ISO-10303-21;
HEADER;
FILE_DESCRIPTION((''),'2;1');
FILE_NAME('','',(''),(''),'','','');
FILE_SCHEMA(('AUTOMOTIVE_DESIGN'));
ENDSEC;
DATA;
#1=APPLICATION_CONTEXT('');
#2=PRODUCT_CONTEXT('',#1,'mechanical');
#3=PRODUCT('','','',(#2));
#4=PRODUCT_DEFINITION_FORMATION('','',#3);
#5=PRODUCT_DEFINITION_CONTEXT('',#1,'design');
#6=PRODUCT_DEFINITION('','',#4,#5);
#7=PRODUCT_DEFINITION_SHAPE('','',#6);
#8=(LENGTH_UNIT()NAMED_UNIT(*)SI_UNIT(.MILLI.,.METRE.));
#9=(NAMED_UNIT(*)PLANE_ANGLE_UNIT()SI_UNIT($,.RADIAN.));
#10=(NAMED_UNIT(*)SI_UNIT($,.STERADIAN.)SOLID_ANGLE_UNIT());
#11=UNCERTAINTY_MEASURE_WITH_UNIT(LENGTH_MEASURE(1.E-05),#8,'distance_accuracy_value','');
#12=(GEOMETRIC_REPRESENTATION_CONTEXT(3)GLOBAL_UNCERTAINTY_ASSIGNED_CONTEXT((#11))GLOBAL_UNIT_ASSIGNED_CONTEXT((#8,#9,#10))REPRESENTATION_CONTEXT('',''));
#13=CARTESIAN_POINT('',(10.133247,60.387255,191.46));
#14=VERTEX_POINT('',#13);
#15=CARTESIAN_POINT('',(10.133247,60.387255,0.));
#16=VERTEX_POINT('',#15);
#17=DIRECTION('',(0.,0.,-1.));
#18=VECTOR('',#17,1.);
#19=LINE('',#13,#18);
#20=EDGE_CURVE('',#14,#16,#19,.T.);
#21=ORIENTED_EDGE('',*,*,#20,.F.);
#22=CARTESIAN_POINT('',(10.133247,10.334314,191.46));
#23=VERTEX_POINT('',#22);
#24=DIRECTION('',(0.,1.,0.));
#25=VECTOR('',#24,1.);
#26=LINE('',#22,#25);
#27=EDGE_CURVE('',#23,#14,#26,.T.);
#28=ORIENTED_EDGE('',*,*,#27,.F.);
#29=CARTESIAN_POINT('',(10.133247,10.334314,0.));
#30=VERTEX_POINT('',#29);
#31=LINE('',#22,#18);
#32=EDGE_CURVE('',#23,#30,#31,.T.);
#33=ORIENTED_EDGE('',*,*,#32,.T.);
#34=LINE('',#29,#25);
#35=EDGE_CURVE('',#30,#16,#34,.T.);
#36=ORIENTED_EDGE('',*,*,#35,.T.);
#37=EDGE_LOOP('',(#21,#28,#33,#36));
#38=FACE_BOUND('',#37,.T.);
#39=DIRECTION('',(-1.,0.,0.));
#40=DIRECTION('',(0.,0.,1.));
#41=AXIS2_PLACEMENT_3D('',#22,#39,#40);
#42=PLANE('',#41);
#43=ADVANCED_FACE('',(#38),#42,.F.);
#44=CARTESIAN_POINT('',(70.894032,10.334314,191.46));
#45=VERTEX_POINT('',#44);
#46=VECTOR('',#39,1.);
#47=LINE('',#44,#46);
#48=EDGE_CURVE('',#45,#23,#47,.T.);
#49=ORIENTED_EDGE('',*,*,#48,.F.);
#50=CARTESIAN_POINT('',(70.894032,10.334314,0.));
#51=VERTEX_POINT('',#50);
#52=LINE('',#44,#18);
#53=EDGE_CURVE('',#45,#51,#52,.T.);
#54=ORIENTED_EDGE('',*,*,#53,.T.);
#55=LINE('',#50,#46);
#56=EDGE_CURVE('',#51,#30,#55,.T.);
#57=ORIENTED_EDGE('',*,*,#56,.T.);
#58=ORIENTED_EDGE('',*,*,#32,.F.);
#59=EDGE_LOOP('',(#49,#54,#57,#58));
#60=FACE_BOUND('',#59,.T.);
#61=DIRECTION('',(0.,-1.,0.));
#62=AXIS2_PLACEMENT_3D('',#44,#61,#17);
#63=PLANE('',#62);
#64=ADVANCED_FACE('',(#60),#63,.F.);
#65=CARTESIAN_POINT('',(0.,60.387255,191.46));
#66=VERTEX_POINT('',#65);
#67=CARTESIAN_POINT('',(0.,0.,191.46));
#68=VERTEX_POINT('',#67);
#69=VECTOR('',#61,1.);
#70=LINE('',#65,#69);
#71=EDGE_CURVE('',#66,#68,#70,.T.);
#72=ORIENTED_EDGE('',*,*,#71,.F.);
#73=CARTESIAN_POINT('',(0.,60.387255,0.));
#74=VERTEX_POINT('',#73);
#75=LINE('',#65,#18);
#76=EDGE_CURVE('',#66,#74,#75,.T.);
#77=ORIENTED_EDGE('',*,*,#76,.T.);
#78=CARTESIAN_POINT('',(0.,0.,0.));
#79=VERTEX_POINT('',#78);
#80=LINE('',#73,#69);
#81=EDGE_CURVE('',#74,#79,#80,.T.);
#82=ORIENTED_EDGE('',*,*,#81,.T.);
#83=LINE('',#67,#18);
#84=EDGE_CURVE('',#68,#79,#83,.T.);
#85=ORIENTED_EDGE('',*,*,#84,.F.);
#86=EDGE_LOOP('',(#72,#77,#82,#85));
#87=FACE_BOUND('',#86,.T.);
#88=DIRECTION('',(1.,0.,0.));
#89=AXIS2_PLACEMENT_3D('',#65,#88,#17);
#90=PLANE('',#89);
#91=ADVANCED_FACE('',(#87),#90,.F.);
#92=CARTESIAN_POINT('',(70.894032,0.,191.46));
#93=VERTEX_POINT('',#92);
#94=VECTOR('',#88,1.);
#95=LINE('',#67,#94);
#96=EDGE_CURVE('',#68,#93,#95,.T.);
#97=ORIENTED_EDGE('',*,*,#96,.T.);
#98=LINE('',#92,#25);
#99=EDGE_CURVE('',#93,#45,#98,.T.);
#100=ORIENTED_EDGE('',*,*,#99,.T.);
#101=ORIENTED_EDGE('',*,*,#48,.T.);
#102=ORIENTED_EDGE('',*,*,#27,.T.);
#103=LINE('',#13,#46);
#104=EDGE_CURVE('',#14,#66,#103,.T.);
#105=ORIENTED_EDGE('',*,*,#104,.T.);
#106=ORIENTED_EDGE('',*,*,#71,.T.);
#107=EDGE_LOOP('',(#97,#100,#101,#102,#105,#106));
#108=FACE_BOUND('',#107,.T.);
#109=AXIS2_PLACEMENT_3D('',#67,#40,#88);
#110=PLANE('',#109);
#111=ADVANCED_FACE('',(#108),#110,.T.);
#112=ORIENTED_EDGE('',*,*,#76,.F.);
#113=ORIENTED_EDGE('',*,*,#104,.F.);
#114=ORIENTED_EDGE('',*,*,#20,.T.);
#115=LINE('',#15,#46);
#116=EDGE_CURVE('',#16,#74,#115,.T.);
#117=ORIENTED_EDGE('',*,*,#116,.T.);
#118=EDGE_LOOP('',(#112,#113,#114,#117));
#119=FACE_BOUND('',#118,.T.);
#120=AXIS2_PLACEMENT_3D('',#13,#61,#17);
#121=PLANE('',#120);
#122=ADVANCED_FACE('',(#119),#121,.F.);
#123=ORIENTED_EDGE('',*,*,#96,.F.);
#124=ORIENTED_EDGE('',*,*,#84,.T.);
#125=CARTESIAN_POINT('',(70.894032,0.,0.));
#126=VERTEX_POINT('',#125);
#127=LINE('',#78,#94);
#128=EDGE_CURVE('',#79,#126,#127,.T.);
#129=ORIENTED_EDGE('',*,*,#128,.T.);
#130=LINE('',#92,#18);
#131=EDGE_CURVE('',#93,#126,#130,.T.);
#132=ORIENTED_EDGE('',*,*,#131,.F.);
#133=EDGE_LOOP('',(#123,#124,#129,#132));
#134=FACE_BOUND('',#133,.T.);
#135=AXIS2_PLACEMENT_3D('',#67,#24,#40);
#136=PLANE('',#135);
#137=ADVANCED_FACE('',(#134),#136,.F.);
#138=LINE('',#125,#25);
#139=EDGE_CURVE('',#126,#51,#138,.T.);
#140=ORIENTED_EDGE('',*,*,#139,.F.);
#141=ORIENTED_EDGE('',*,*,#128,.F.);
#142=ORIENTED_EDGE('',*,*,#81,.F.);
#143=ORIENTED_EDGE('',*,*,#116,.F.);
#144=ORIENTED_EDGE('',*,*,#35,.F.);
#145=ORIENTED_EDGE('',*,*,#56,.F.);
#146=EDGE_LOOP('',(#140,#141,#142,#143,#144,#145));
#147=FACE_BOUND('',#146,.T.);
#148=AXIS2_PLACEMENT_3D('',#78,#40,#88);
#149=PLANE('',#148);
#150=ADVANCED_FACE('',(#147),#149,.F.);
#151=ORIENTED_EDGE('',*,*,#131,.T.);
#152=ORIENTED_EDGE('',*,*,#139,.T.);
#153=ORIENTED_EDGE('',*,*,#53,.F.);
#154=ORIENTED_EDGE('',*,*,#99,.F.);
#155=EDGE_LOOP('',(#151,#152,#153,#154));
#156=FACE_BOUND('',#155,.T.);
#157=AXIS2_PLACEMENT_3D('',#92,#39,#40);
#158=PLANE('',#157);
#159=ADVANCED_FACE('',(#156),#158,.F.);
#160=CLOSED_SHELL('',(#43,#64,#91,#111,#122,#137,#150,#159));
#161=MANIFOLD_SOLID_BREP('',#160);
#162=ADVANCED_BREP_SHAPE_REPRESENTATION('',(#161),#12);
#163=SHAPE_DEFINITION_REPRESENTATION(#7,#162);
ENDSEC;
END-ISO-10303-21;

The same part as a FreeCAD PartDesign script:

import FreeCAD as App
import Part
import Sketcher
from FreeCAD import Vector


def add_polygon(sketch, points):
    """Adds a closed chain of lines whose ends are joined by coincident constraints."""
    first, n = sketch.GeometryCount, len(points)
    for a, b in zip(points, points[1:] + points[:1]):
        sketch.addGeometry(Part.LineSegment(App.Vector(*a, 0), App.Vector(*b, 0)), False)
    for i in range(n):
        sketch.addConstraint(Sketcher.Constraint("Coincident", first + i, 2, first + (i + 1) % n, 1))

doc = App.newDocument("Part")
body = doc.addObject("PartDesign::Body", "Body")

# Sketch on XY plane
sketch1 = body.newObject("Sketcher::SketchObject", "Sketch")
sketch1.AttachmentSupport = (doc.getObject("XY_Plane"), [""])
sketch1.MapMode = "FlatFace"
add_polygon(sketch1, [(0, 0), (71, 0), (71, 10), (10, 10), (10, 60), (0, 60)])  # lines 0-5
sketch1.addConstraint([
    Sketcher.Constraint("Horizontal", 0),
    Sketcher.Constraint("Vertical", 1),
    Sketcher.Constraint("Horizontal", 2),
    Sketcher.Constraint("Vertical", 3),
    Sketcher.Constraint("Horizontal", 4),
    Sketcher.Constraint("Vertical", 5),
    Sketcher.Constraint("Coincident", 5, 2, -1, 1),
    Sketcher.Constraint("DistanceX", 0, 1, 0, 2, 70.894032),
    Sketcher.Constraint("DistanceY", 3, 1, 3, 2, 50.052941),
    Sketcher.Constraint("DistanceX", 2, 2, 2, 1, 60.760784),
    Sketcher.Constraint("DistanceY", 1, 1, 1, 2, 10.334314),
])
pad1 = body.newObject("PartDesign::Pad", "Pad")
pad1.Profile = sketch1
pad1.Length = 191.46

doc.recompute()
